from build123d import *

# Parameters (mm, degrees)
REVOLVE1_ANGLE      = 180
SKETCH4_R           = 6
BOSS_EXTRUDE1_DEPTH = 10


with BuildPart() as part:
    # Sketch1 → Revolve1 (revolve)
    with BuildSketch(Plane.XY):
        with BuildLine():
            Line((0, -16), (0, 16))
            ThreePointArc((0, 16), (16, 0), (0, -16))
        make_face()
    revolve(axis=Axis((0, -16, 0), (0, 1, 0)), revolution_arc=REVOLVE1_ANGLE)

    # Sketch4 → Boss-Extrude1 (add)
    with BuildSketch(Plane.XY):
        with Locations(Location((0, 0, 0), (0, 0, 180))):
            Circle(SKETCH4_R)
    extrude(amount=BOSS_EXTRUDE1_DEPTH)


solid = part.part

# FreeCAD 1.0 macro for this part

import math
import FreeCAD as App
import Part
import Sketcher
from FreeCAD import Vector

doc = App.newDocument("Part")
body = doc.addObject("PartDesign::Body", "Body")

sketch1 = doc.addObject("Sketcher::SketchObject", "Sketch")
body.addObject(sketch1)
sketch1.AttachmentSupport = (doc.XY_Plane, [""])
sketch1.MapMode = "FlatFace"
sketch1.addGeometry([
    Part.LineSegment(Vector(0, 16, 0), Vector(0, -16, 0)),
    Part.ArcOfCircle(Part.Circle(Vector(0, 0, 0), Vector(0, 0, 1), 16), math.radians(-90), math.radians(90)),
], False)
sketch1.addConstraint([
    Sketcher.Constraint("Coincident", 0, 1, 1, 2),
    Sketcher.Constraint("Coincident", 1, 1, 0, 2),
    Sketcher.Constraint("Vertical", 0),
    Sketcher.Constraint("Coincident", 1, 3, -1, 1),
    Sketcher.Constraint("PointOnObject", 0, 1, -2),
    Sketcher.Constraint("Radius", 1, 16.0),
])
revolution = doc.addObject("PartDesign::Revolution", "Revolution")
body.addObject(revolution)
revolution.Profile = sketch1
revolution.ReferenceAxis = (sketch1, ["V_Axis"])
revolution.Angle = 180

sketch2 = doc.addObject("Sketcher::SketchObject", "Sketch001")
body.addObject(sketch2)
sketch2.AttachmentSupport = (doc.XY_Plane, [""])
sketch2.MapMode = "FlatFace"
sketch2.addGeometry(Part.Circle(Vector(0, 0, 0), Vector(0, 0, 1), 6), False)
sketch2.addConstraint([
    Sketcher.Constraint("Coincident", 0, 3, -1, 1),
    Sketcher.Constraint("Diameter", 0, 12.0),
])
pad1 = doc.addObject("PartDesign::Pad", "Pad")
body.addObject(pad1)
pad1.Profile = sketch2
pad1.Length = 10

doc.recompute()
